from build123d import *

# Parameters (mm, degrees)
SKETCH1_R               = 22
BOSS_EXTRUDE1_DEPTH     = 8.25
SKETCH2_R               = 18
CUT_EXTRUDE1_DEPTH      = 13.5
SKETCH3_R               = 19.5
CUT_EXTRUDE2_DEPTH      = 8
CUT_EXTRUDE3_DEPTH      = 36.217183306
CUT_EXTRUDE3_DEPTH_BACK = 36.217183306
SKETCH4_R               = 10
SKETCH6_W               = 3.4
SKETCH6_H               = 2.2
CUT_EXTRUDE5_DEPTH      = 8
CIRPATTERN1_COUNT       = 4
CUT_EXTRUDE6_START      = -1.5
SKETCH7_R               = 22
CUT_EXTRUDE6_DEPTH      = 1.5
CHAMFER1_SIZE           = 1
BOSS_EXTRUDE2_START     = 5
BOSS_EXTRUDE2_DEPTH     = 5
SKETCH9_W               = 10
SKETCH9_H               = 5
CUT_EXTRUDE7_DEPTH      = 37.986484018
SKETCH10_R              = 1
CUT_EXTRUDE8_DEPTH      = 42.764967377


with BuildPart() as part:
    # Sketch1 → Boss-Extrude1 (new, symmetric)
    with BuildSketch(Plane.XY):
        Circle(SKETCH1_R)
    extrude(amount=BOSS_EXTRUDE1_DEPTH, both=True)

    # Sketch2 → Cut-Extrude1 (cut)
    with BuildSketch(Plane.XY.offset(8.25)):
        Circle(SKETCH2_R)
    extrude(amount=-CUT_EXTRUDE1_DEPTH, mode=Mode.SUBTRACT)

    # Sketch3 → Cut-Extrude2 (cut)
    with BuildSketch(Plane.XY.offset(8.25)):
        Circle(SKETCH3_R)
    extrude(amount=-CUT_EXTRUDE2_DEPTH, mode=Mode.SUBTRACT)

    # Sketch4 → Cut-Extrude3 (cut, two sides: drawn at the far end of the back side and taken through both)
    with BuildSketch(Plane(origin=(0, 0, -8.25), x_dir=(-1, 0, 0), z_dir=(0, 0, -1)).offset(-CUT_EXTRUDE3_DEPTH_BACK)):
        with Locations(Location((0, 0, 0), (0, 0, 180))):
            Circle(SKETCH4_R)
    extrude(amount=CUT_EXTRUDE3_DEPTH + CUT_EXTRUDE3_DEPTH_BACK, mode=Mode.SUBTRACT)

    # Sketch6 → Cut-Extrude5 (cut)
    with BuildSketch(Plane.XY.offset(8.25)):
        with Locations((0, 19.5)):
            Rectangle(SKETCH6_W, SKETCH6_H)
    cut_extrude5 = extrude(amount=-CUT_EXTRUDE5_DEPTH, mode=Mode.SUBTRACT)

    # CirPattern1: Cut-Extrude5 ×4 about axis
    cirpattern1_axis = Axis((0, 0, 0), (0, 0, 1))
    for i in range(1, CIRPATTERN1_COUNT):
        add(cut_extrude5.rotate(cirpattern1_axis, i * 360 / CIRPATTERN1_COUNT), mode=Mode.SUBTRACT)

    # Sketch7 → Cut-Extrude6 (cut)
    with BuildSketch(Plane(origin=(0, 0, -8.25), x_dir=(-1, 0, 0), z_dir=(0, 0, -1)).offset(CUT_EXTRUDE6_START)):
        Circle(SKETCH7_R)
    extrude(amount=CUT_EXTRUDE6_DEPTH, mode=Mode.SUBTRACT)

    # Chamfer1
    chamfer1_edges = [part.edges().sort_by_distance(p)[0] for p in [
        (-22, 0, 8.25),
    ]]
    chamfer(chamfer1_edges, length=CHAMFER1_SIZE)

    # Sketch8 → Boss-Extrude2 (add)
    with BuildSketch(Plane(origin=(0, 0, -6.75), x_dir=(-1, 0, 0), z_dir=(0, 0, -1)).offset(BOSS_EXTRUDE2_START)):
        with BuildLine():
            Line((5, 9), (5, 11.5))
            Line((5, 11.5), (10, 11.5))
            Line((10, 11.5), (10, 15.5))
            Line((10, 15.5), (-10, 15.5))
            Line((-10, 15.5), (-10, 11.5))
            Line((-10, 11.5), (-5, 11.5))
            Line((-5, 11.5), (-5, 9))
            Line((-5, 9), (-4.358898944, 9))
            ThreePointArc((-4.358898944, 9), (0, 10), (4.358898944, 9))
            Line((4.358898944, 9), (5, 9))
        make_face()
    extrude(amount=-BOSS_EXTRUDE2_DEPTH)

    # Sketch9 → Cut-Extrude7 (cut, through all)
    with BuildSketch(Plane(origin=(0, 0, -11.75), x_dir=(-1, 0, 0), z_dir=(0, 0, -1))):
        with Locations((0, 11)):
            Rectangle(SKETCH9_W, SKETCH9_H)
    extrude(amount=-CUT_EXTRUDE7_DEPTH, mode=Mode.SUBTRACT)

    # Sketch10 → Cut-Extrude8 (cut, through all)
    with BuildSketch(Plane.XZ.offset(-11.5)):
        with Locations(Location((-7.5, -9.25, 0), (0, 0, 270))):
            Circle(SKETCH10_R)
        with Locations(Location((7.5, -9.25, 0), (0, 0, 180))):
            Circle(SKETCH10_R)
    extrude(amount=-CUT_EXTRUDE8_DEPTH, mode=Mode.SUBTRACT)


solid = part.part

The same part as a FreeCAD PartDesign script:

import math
import FreeCAD as App
import Part
import Sketcher
from FreeCAD import Vector


def edges_at(feature, points):
    """Names of the edges that pass closest to the given points."""
    edges = feature.Shape.Edges
    near = lambda p: min(range(len(edges)), key=lambda i: edges[i].distToShape(Part.Vertex(*p))[0])
    return sorted({f"Edge{near(p) + 1}" for p in points})


def add_polygon(sketch, points):
    """Adds a closed chain of lines whose ends are joined by coincident constraints."""
    first, n = sketch.GeometryCount, len(points)
    for a, b in zip(points, points[1:] + points[:1]):
        sketch.addGeometry(Part.LineSegment(App.Vector(*a, 0), App.Vector(*b, 0)), False)
    for i in range(n):
        sketch.addConstraint(Sketcher.Constraint("Coincident", first + i, 2, first + (i + 1) % n, 1))

doc = App.newDocument("Part")
body = doc.addObject("PartDesign::Body", "Body")

# Sketch on XY plane
sketch1 = body.newObject("Sketcher::SketchObject", "Sketch")
sketch1.AttachmentSupport = (doc.getObject("XY_Plane"), [""])
sketch1.MapMode = "FlatFace"
sketch1.addGeometry(Part.Circle(Vector(0, 0, 0), Vector(0, 0, 1), 22), False)
sketch1.addConstraint([
    Sketcher.Constraint("Coincident", 0, 3, -1, 1),
    Sketcher.Constraint("Diameter", 0, 44.0),
])
pad1 = body.newObject("PartDesign::Pad", "Pad")
pad1.Profile = sketch1
pad1.Length = 16.5
pad1.Midplane = True

# Sketch on XY plane
sketch2 = body.newObject("Sketcher::SketchObject", "Sketch001")
sketch2.AttachmentSupport = (doc.getObject("XY_Plane"), [""])
sketch2.MapMode = "FlatFace"
sketch2.AttachmentOffset = App.Placement(Vector(0, 0, 8.25), App.Rotation())
sketch2.addGeometry(Part.Circle(Vector(0, 0, 0), Vector(0, 0, 1), 18), False)
sketch2.addConstraint([
    Sketcher.Constraint("Coincident", 0, 3, -1, 1),
    Sketcher.Constraint("Diameter", 0, 36.0),
])
pocket1 = body.newObject("PartDesign::Pocket", "Pocket")
pocket1.Profile = sketch2
pocket1.Length = 13.5

# Sketch on XY plane
sketch3 = body.newObject("Sketcher::SketchObject", "Sketch002")
sketch3.AttachmentSupport = (doc.getObject("XY_Plane"), [""])
sketch3.MapMode = "FlatFace"
sketch3.AttachmentOffset = App.Placement(Vector(0, 0, 8.25), App.Rotation())
sketch3.addGeometry(Part.Circle(Vector(0, 0, 0), Vector(0, 0, 1), 20), False)
sketch3.addConstraint([
    Sketcher.Constraint("Coincident", 0, 3, -1, 1),
    Sketcher.Constraint("Diameter", 0, 39.0),
])
pocket2 = body.newObject("PartDesign::Pocket", "Pocket001")
pocket2.Profile = sketch3
pocket2.Length = 8

# Sketch on XY plane
sketch4 = body.newObject("Sketcher::SketchObject", "Sketch003")
sketch4.AttachmentSupport = (doc.getObject("XY_Plane"), [""])
sketch4.MapMode = "FlatFace"
sketch4.AttachmentOffset = App.Placement(Vector(0, 0, -8.25), App.Rotation())
sketch4.addGeometry(Part.Circle(Vector(0, 0, 0), Vector(0, 0, 1), 10), False)
sketch4.addConstraint([
    Sketcher.Constraint("Coincident", 0, 3, -1, 1),
    Sketcher.Constraint("Diameter", 0, 20.0),
])
pocket3 = body.newObject("PartDesign::Pocket", "Pocket002")
pocket3.Profile = sketch4
pocket3.Type = "ThroughAll"
pocket3.Midplane = True

# Sketch on XY plane
sketch5 = body.newObject("Sketcher::SketchObject", "Sketch004")
sketch5.AttachmentSupport = (doc.getObject("XY_Plane"), [""])
sketch5.MapMode = "FlatFace"
sketch5.AttachmentOffset = App.Placement(Vector(0, 0, 8.25), App.Rotation())
add_polygon(sketch5, [(-1.7, 20.6), (-1.7, 18.4), (1.7, 18.4), (1.7, 20.6)])  # lines 0-3
sketch5.addConstraint([
    Sketcher.Constraint("Vertical", 0),
    Sketcher.Constraint("Horizontal", 1),
    Sketcher.Constraint("Vertical", 2),
    Sketcher.Constraint("Horizontal", 3),
    Sketcher.Constraint("DistanceX", 1, 1, 1, 2, 3.4),
    Sketcher.Constraint("DistanceY", 0, 2, 0, 1, 2.2),
    Sketcher.Constraint("DistanceX", 0, 2, -1, 1, 1.7),
    Sketcher.Constraint("DistanceY", -1, 1, 0, 2, 18.4),
])
pocket4 = body.newObject("PartDesign::Pocket", "Pocket003")
pocket4.Profile = sketch5
pocket4.Length = 8
doc.recompute()

polarpattern = body.newObject("PartDesign::PolarPattern", "PolarPattern")
polarpattern.Originals = [pocket4]
polarpattern.Axis = (doc.getObject("Z_Axis"), [""])
polarpattern.Angle = 360
polarpattern.Occurrences = 4
body.Tip = polarpattern

# Sketch on XY plane
sketch6 = body.newObject("Sketcher::SketchObject", "Sketch005")
sketch6.AttachmentSupport = (doc.getObject("XY_Plane"), [""])
sketch6.MapMode = "FlatFace"
sketch6.AttachmentOffset = App.Placement(Vector(0, 0, -6.75), App.Rotation())
sketch6.addGeometry(Part.Circle(Vector(0, 0, 0), Vector(0, 0, 1), 22), False)
sketch6.addConstraint([
    Sketcher.Constraint("Coincident", 0, 3, -1, 1),
    Sketcher.Constraint("Diameter", 0, 44.0),
])
pocket5 = body.newObject("PartDesign::Pocket", "Pocket004")
pocket5.Profile = sketch6
pocket5.Length = 1.5
doc.recompute()

chamfer = body.newObject("PartDesign::Chamfer", "Chamfer")
chamfer.Base = (pocket5, edges_at(pocket5, [(-22, 0, 8.25)]))
chamfer.Size = 1

# Sketch on XY plane
sketch7 = body.newObject("Sketcher::SketchObject", "Sketch006")
sketch7.AttachmentSupport = (doc.getObject("XY_Plane"), [""])
sketch7.MapMode = "FlatFace"
sketch7.AttachmentOffset = App.Placement(Vector(0, 0, -11.75), App.Rotation())
sketch7.addGeometry([
    Part.LineSegment(Vector(-5, 9, 0), Vector(-5, 11.5, 0)),  # 0
    Part.LineSegment(Vector(-5, 11.5, 0), Vector(-10, 11.5, 0)),  # 1
    Part.LineSegment(Vector(-10, 11.5, 0), Vector(-10, 15.5, 0)),  # 2
    Part.LineSegment(Vector(-10, 15.5, 0), Vector(10, 15.5, 0)),  # 3
    Part.LineSegment(Vector(10, 15.5, 0), Vector(10, 11.5, 0)),  # 4
    Part.LineSegment(Vector(10, 11.5, 0), Vector(5, 11.5, 0)),  # 5
    Part.LineSegment(Vector(5, 11.5, 0), Vector(5, 9, 0)),  # 6
    Part.LineSegment(Vector(5, 9, 0), Vector(4.4, 9, 0)),  # 7
    Part.ArcOfCircle(Part.Circle(Vector(0, 0, 0), Vector(0, 0, 1), 10), math.radians(64), math.radians(116)),  # 8
    Part.LineSegment(Vector(-4.4, 9, 0), Vector(-5, 9, 0)),  # 9
], False)
sketch7.addConstraint([
    Sketcher.Constraint("Coincident", 0, 2, 1, 1),
    Sketcher.Constraint("Coincident", 1, 2, 2, 1),
    Sketcher.Constraint("Coincident", 2, 2, 3, 1),
    Sketcher.Constraint("Coincident", 3, 2, 4, 1),
    Sketcher.Constraint("Coincident", 4, 2, 5, 1),
    Sketcher.Constraint("Coincident", 5, 2, 6, 1),
    Sketcher.Constraint("Coincident", 6, 2, 7, 1),
    Sketcher.Constraint("Coincident", 7, 2, 8, 1),
    Sketcher.Constraint("Coincident", 8, 2, 9, 1),
    Sketcher.Constraint("Coincident", 9, 2, 0, 1),
    Sketcher.Constraint("Vertical", 0),
    Sketcher.Constraint("Horizontal", 1),
    Sketcher.Constraint("Vertical", 2),
    Sketcher.Constraint("Horizontal", 3),
    Sketcher.Constraint("Vertical", 4),
    Sketcher.Constraint("Horizontal", 5),
    Sketcher.Constraint("Vertical", 6),
    Sketcher.Constraint("Horizontal", 7),
    Sketcher.Constraint("Horizontal", 9),
    Sketcher.Constraint("Coincident", 8, 3, -1, 1),
    Sketcher.Constraint("Symmetric", 1, 2, 4, 2, -2),
    Sketcher.Constraint("Symmetric", 6, 2, 9, 2, -2),
    Sketcher.Constraint("Radius", 8, 10.0),
    Sketcher.Constraint("DistanceX", 1, 2, 1, 1, 5.0),
    Sketcher.Constraint("DistanceX", 3, 1, 3, 2, 20.0),
    Sketcher.Constraint("DistanceY", 2, 1, 2, 2, 4.0),
    Sketcher.Constraint("DistanceY", 0, 1, 0, 2, 2.5),
    Sketcher.Constraint("DistanceY", -1, 1, 6, 2, 9.0),
])
pad2 = body.newObject("PartDesign::Pad", "Pad001")
pad2.Profile = sketch7
pad2.Length = 5

# Sketch on XY plane
sketch8 = body.newObject("Sketcher::SketchObject", "Sketch007")
sketch8.AttachmentSupport = (doc.getObject("XY_Plane"), [""])
sketch8.MapMode = "FlatFace"
sketch8.AttachmentOffset = App.Placement(Vector(0, 0, -11.75), App.Rotation())
add_polygon(sketch8, [(5, 14), (5, 8), (-5, 8), (-5, 14)])  # lines 0-3
sketch8.addConstraint([
    Sketcher.Constraint("Vertical", 0),
    Sketcher.Constraint("Horizontal", 1),
    Sketcher.Constraint("Vertical", 2),
    Sketcher.Constraint("Horizontal", 3),
    Sketcher.Constraint("DistanceX", 1, 2, 1, 1, 10.0),
    Sketcher.Constraint("DistanceY", 0, 2, 0, 1, 5.0),
    Sketcher.Constraint("DistanceX", -1, 1, 0, 2, 5.0),
    Sketcher.Constraint("DistanceY", -1, 1, 0, 2, 8.5),
])
pocket6 = body.newObject("PartDesign::Pocket", "Pocket005")
pocket6.Profile = sketch8
pocket6.Type = "ThroughAll"
pocket6.Reversed = True

# Sketch on XZ plane
sketch9 = body.newObject("Sketcher::SketchObject", "Sketch008")
sketch9.AttachmentSupport = (doc.getObject("XZ_Plane"), [""])
sketch9.MapMode = "FlatFace"
sketch9.AttachmentOffset = App.Placement(Vector(0, 0, -11.5), App.Rotation())
sketch9.addGeometry([
    Part.Circle(Vector(-7.5, -9.2, 0), Vector(0, 0, 1), 1),
    Part.Circle(Vector(7.5, -9.2, 0), Vector(0, 0, 1), 1),
], False)
sketch9.addConstraint([
    Sketcher.Constraint("Equal", 0, 1),
    Sketcher.Constraint("Symmetric", 0, 3, 1, 3, -2),
    Sketcher.Constraint("Diameter", 0, 2.0),
    Sketcher.Constraint("DistanceX", 0, 3, 1, 3, 15.0),
    Sketcher.Constraint("DistanceY", 0, 3, -1, 1, 9.25),
])
pocket7 = body.newObject("PartDesign::Pocket", "Pocket006")
pocket7.Profile = sketch9
pocket7.Type = "ThroughAll"

doc.recompute()
